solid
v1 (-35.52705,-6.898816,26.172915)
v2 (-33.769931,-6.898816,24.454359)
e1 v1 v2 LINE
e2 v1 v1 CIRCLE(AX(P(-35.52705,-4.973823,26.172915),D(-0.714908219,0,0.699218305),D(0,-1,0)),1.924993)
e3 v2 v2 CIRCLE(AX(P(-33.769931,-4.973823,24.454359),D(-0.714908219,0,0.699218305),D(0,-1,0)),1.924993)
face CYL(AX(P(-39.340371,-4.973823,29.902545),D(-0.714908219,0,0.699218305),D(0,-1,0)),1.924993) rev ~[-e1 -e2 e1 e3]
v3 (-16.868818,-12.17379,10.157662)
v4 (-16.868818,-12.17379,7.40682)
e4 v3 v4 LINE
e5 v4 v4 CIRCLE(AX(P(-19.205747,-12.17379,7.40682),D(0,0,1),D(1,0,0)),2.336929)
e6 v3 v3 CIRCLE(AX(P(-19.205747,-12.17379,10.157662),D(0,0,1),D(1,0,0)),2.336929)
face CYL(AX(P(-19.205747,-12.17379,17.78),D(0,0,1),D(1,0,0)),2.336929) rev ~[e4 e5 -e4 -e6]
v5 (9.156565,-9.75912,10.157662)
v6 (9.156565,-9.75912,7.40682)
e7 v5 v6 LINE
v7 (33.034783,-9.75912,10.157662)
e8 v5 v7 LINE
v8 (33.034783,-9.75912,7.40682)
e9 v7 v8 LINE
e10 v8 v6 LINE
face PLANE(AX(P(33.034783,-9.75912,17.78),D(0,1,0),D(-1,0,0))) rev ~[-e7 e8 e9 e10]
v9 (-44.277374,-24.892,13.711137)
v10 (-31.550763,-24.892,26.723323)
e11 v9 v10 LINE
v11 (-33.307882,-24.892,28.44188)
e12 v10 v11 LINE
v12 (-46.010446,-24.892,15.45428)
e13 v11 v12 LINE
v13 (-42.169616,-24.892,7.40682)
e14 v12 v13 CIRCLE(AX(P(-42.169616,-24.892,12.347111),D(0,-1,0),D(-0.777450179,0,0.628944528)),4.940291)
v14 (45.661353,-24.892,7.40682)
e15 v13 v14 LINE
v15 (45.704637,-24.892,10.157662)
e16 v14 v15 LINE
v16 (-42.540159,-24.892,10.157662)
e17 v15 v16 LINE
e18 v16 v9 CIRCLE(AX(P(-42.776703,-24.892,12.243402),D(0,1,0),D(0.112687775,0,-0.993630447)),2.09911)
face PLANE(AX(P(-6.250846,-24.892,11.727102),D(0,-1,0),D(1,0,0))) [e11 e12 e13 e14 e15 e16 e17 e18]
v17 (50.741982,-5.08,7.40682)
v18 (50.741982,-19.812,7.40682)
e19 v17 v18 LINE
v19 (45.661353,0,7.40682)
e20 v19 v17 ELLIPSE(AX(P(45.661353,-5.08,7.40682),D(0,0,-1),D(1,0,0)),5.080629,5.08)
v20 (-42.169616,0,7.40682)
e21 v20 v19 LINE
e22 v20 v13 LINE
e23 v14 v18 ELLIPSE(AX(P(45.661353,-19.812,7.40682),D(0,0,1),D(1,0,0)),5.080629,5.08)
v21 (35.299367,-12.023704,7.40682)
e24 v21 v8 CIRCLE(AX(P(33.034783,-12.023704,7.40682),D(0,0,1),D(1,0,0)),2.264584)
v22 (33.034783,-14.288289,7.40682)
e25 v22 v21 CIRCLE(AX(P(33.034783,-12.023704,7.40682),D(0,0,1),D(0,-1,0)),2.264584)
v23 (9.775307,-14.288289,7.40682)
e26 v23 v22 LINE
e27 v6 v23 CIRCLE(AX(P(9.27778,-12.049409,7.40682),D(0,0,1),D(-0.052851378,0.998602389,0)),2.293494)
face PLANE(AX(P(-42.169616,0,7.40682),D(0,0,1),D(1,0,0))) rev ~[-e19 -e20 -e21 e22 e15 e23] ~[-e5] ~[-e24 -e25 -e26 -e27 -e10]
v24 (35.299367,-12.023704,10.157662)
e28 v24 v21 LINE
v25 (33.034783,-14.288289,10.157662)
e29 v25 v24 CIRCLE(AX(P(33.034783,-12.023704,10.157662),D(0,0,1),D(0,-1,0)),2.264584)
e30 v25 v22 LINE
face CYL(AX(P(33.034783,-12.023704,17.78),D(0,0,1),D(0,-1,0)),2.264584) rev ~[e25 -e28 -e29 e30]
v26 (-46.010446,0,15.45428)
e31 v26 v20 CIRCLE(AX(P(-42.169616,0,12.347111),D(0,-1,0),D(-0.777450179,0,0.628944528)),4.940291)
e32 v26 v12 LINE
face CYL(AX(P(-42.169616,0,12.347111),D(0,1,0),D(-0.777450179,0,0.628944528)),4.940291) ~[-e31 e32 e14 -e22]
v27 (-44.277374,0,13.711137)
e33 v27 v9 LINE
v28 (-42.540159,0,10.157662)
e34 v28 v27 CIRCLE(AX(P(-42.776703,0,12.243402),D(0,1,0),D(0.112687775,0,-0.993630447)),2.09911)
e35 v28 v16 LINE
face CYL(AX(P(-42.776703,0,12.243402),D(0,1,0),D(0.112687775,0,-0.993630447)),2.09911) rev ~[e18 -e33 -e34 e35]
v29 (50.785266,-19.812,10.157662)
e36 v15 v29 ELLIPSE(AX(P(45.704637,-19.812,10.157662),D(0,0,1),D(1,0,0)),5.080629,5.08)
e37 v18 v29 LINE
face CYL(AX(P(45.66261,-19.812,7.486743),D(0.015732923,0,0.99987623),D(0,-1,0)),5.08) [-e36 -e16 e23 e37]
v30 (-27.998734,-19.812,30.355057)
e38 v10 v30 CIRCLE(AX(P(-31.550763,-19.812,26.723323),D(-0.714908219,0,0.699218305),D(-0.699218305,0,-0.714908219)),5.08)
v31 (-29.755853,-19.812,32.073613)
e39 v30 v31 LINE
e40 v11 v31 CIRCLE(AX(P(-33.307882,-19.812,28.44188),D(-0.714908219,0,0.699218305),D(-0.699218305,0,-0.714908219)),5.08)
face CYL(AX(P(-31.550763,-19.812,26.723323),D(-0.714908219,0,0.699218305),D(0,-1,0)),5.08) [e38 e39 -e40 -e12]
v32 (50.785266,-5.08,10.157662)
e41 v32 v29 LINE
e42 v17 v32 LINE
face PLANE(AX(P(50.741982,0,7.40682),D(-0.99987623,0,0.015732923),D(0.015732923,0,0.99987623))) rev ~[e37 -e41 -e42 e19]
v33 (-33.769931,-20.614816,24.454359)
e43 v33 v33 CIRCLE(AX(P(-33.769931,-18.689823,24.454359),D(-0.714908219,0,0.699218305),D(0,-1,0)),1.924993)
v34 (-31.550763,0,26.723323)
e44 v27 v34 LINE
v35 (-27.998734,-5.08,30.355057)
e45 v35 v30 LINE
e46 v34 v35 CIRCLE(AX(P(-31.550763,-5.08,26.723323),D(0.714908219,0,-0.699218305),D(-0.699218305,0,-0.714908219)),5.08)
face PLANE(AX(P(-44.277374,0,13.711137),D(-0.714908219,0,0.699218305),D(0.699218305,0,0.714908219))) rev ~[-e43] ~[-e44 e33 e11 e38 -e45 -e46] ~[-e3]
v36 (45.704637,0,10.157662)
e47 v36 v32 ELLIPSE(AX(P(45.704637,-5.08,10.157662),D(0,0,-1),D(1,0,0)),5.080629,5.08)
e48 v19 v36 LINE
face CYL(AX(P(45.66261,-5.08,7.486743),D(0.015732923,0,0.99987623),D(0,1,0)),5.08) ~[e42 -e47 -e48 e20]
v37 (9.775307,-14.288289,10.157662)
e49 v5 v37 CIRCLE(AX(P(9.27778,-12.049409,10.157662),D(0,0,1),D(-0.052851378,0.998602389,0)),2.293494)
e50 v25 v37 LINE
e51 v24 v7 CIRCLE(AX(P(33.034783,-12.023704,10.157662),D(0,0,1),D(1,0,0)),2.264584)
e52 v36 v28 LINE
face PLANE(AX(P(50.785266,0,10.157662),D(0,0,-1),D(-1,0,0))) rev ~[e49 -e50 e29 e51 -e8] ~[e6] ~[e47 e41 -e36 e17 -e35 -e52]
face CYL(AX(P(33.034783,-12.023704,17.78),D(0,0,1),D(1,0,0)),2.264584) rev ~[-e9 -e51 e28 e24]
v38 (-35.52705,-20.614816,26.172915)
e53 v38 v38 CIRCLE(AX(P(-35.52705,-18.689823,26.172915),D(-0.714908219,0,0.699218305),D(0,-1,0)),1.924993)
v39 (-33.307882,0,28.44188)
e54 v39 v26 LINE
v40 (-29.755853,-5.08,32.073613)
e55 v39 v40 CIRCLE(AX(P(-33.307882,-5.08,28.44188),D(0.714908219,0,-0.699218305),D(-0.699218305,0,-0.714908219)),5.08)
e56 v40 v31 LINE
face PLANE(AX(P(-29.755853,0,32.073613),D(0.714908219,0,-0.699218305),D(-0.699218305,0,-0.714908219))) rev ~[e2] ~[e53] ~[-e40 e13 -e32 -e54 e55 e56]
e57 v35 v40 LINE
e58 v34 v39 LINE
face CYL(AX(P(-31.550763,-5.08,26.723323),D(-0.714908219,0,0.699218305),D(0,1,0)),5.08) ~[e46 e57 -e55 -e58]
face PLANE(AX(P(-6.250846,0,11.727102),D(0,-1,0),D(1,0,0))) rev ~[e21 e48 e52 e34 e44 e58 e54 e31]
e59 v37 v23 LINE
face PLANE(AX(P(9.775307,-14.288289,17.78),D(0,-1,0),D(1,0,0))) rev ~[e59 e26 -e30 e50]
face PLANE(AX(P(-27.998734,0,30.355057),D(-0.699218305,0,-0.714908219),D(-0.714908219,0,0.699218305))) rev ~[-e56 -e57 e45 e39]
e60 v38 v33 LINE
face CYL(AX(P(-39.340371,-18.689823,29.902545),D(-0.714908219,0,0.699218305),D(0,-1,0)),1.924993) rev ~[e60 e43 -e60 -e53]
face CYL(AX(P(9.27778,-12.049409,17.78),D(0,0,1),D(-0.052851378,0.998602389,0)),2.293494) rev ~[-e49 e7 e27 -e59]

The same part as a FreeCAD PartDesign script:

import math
import FreeCAD as App
import Part
import Sketcher
Q = App.Units.Quantity


def edges_at(feature, points):
    """Names of the edges that pass closest to the given points."""
    edges = feature.Shape.Edges
    near = lambda p: min(range(len(edges)), key=lambda i: edges[i].distToShape(Part.Vertex(*p))[0])
    return sorted({f"Edge{near(p) + 1}" for p in points})

doc = App.newDocument("Part")
body = doc.addObject("PartDesign::Body", "Body")

sketch1 = doc.addObject("Sketcher::SketchObject", "Sketch")
body.addObject(sketch1)
sketch1.AttachmentSupport = (doc.XZ_Plane, [""])
sketch1.MapMode = "FlatFace"
sketch1.addGeometry([
    Part.LineSegment(App.Vector(-42.169616, 7.40682, 0), App.Vector(50.741982, 7.40682, 0)),
    Part.LineSegment(App.Vector(50.741982, 7.40682, 0), App.Vector(50.785266, 10.157662, 0)),
    Part.LineSegment(App.Vector(50.785266, 10.157662, 0), App.Vector(-42.540159, 10.157662, 0)),
    Part.ArcOfCircle(Part.Circle(App.Vector(-42.776703, 12.243402, 0), App.Vector(0, 0, 1), 2.09911), math.radians(135.635678), math.radians(276.470277)),
    Part.LineSegment(App.Vector(-44.277374, 13.711137, 0), App.Vector(-27.998734, 30.355057, 0)),
    Part.LineSegment(App.Vector(-27.998734, 30.355057, 0), App.Vector(-29.755853, 32.073613, 0)),
    Part.LineSegment(App.Vector(-29.755853, 32.073613, 0), App.Vector(-46.010446, 15.45428, 0)),
    Part.ArcOfCircle(Part.Circle(App.Vector(-42.169616, 12.347111, 0), App.Vector(0, 0, 1), 4.940291), math.radians(141.027705), math.radians(270)),
], False)
sketch1.addConstraint([
    Sketcher.Constraint("Coincident", 0, 2, 1, 1),
    Sketcher.Constraint("Coincident", 1, 2, 2, 1),
    Sketcher.Constraint("Coincident", 2, 2, 3, 2),
    Sketcher.Constraint("Tangent", 3, 1, 4, 1),
    Sketcher.Constraint("Coincident", 4, 2, 5, 1),
    Sketcher.Constraint("Coincident", 5, 2, 6, 1),
    Sketcher.Constraint("Coincident", 6, 2, 7, 1),
    Sketcher.Constraint("Tangent", 7, 2, 0, 1),
    Sketcher.Constraint("Horizontal", 0),
    Sketcher.Constraint("Horizontal", 2),
    Sketcher.Constraint("Perpendicular", 4, 5),
    Sketcher.Constraint("Perpendicular", 5, 6),
    Sketcher.Constraint("Radius", 3, Q("2.09911 mm")),
    Sketcher.Constraint("Radius", 7, Q("4.940291 mm")),
    Sketcher.Constraint("DistanceY", -1, 1, 3, 3, Q("12.243402 mm")),
    Sketcher.Constraint("DistanceX", 4, 2, 1, 2, Q("78.784 mm")),
    Sketcher.Constraint("DistanceX", 0, 1, 0, 2, Q("92.911597 mm")),
    Sketcher.Constraint("DistanceX", 2, 2, 2, 1, Q("93.325425 mm")),
    Sketcher.Constraint("DistanceY", -1, 1, 7, 3, Q("12.347111 mm")),
    Sketcher.Constraint("DistanceX", -1, 1, 0, 2, Q("50.741982 mm")),
    Sketcher.Constraint("DistanceX", 2, 2, -1, 1, Q("42.540159 mm")),
    Sketcher.Constraint("DistanceY", -1, 1, 6, 2, Q("15.45428 mm")),
    Sketcher.Constraint("DistanceY", 1, 2, 7, 3, Q("2.189449 mm")),
    Sketcher.Constraint("DistanceX", 3, 1, 3, 3, Q("1.500671 mm")),
])
pad1 = doc.addObject("PartDesign::Pad", "Pad")
body.addObject(pad1)
pad1.Profile = sketch1
pad1.Length = Q("0.98 in")

sketch2 = doc.addObject("Sketcher::SketchObject", "Sketch001")
body.addObject(sketch2)
sketch2.Placement = App.Placement(App.Vector(-35.05421, 0, 34.284884), App.Rotation(App.Vector(0, -1, 0), App.Vector(0.699218305, 0, 0.714908219), App.Vector(-0.714908219, 0, 0.699218305), "ZXY"))
sketch2.addGeometry([
    Part.Circle(App.Vector(4.973823, -6.129932, 0), App.Vector(0, 0, 1), 1.924993),
    Part.Circle(App.Vector(18.689823, -6.129932, 0), App.Vector(0, 0, 1), 1.924993),
], False)
sketch2.addConstraint([
    Sketcher.Constraint("Equal", 0, 1),
    Sketcher.Constraint("Horizontal", 0, 3, 1, 3),
    Sketcher.Constraint("DistanceX", 0, 3, 1, 3, Q("0.54 in")),
    Sketcher.Constraint("Diameter", 0, Q("3.849986 mm")),
    Sketcher.Constraint("DistanceX", -1, 1, 0, 3, Q("4.973823 mm")),
    Sketcher.Constraint("DistanceY", 0, 3, -1, 1, Q("6.129932 mm")),
])
pocket1 = doc.addObject("PartDesign::Pocket", "Pocket")
body.addObject(pocket1)
pocket1.Profile = sketch2
pocket1.Length = Q("1 in")

sketch3 = doc.addObject("Sketcher::SketchObject", "Sketch002")
body.addObject(sketch3)
sketch3.AttachmentSupport = (doc.XY_Plane, [""])
sketch3.MapMode = "FlatFace"
sketch3.AttachmentOffset = App.Placement(App.Vector(0, 0, 0.7 * 25.4), App.Rotation())
sketch3.addGeometry([
    Part.LineSegment(App.Vector(9.775307, -14.288289, 0), App.Vector(33.034783, -14.288289, 0)),
    Part.ArcOfCircle(Part.Circle(App.Vector(33.034783, -12.023704, 0), App.Vector(0, 0, 1), 2.264584), math.radians(-90), math.radians(0)),
    Part.ArcOfCircle(Part.Circle(App.Vector(33.034783, -12.023704, 0), App.Vector(0, 0, 1), 2.264584), math.radians(0), math.radians(90)),
    Part.LineSegment(App.Vector(33.034783, -9.75912, 0), App.Vector(9.156565, -9.75912, 0)),
    Part.ArcOfCircle(Part.Circle(App.Vector(9.27778, -12.049409, 0), App.Vector(0, 0, 1), 2.293494), math.radians(93.029572), math.radians(282.528772)),
], False)
sketch3.addConstraint([
    Sketcher.Constraint("Tangent", 0, 2, 1, 1),
    Sketcher.Constraint("Tangent", 1, 2, 2, 1),
    Sketcher.Constraint("Tangent", 2, 2, 3, 1),
    Sketcher.Constraint("Coincident", 3, 2, 4, 1),
    Sketcher.Constraint("Coincident", 4, 2, 0, 1),
    Sketcher.Constraint("Horizontal", 0),
    Sketcher.Constraint("Horizontal", 3),
    Sketcher.Constraint("Equal", 1, 2),
    Sketcher.Constraint("Horizontal", 2, 3, 1, 2),
    Sketcher.Constraint("Radius", 1, Q("2.264584 mm")),
    Sketcher.Constraint("Radius", 4, Q("2.293494 mm")),
    Sketcher.Constraint("DistanceX", 0, 1, 0, 2, Q("23.259476 mm")),
    Sketcher.Constraint("DistanceX", 3, 2, 3, 1, Q("23.878218 mm")),
    Sketcher.Constraint("DistanceX", -1, 1, 4, 3, Q("9.27778 mm")),
    Sketcher.Constraint("DistanceY", 4, 3, -1, 1, Q("12.049409 mm")),
])
pocket2 = doc.addObject("PartDesign::Pocket", "Pocket001")
body.addObject(pocket2)
pocket2.Profile = sketch3
pocket2.Length = Q("1 in")

sketch4 = doc.addObject("Sketcher::SketchObject", "Sketch003")
body.addObject(sketch4)
sketch4.AttachmentSupport = (doc.XY_Plane, [""])
sketch4.MapMode = "FlatFace"
sketch4.AttachmentOffset = App.Placement(App.Vector(0, 0, 0.7 * 25.4), App.Rotation())
sketch4.addGeometry(Part.Circle(App.Vector(-19.205747, -12.17379, 0), App.Vector(0, 0, 1), 2.336929), False)
sketch4.addConstraint([
    Sketcher.Constraint("Diameter", 0, Q("4.673857 mm")),
    Sketcher.Constraint("DistanceY", 0, 3, -1, 1, Q("12.17379 mm")),
    Sketcher.Constraint("DistanceX", 0, 3, -1, 1, Q("19.205747 mm")),
])
pocket3 = doc.addObject("PartDesign::Pocket", "Pocket002")
body.addObject(pocket3)
pocket3.Profile = sketch4
pocket3.Length = Q("1 in")
doc.recompute()

fillet = doc.addObject("PartDesign::Fillet", "Fillet")
body.addObject(fillet)
fillet.Base = (pocket3, edges_at(pocket3, [
    (-28.877, 0, 31.214),
    (-28.877, -24.892, 31.214),
    (50.764, -24.892, 8.782),
    (50.764, 0, 8.782),
]))
fillet.Radius = Q("0.2 in")

doc.recompute()
